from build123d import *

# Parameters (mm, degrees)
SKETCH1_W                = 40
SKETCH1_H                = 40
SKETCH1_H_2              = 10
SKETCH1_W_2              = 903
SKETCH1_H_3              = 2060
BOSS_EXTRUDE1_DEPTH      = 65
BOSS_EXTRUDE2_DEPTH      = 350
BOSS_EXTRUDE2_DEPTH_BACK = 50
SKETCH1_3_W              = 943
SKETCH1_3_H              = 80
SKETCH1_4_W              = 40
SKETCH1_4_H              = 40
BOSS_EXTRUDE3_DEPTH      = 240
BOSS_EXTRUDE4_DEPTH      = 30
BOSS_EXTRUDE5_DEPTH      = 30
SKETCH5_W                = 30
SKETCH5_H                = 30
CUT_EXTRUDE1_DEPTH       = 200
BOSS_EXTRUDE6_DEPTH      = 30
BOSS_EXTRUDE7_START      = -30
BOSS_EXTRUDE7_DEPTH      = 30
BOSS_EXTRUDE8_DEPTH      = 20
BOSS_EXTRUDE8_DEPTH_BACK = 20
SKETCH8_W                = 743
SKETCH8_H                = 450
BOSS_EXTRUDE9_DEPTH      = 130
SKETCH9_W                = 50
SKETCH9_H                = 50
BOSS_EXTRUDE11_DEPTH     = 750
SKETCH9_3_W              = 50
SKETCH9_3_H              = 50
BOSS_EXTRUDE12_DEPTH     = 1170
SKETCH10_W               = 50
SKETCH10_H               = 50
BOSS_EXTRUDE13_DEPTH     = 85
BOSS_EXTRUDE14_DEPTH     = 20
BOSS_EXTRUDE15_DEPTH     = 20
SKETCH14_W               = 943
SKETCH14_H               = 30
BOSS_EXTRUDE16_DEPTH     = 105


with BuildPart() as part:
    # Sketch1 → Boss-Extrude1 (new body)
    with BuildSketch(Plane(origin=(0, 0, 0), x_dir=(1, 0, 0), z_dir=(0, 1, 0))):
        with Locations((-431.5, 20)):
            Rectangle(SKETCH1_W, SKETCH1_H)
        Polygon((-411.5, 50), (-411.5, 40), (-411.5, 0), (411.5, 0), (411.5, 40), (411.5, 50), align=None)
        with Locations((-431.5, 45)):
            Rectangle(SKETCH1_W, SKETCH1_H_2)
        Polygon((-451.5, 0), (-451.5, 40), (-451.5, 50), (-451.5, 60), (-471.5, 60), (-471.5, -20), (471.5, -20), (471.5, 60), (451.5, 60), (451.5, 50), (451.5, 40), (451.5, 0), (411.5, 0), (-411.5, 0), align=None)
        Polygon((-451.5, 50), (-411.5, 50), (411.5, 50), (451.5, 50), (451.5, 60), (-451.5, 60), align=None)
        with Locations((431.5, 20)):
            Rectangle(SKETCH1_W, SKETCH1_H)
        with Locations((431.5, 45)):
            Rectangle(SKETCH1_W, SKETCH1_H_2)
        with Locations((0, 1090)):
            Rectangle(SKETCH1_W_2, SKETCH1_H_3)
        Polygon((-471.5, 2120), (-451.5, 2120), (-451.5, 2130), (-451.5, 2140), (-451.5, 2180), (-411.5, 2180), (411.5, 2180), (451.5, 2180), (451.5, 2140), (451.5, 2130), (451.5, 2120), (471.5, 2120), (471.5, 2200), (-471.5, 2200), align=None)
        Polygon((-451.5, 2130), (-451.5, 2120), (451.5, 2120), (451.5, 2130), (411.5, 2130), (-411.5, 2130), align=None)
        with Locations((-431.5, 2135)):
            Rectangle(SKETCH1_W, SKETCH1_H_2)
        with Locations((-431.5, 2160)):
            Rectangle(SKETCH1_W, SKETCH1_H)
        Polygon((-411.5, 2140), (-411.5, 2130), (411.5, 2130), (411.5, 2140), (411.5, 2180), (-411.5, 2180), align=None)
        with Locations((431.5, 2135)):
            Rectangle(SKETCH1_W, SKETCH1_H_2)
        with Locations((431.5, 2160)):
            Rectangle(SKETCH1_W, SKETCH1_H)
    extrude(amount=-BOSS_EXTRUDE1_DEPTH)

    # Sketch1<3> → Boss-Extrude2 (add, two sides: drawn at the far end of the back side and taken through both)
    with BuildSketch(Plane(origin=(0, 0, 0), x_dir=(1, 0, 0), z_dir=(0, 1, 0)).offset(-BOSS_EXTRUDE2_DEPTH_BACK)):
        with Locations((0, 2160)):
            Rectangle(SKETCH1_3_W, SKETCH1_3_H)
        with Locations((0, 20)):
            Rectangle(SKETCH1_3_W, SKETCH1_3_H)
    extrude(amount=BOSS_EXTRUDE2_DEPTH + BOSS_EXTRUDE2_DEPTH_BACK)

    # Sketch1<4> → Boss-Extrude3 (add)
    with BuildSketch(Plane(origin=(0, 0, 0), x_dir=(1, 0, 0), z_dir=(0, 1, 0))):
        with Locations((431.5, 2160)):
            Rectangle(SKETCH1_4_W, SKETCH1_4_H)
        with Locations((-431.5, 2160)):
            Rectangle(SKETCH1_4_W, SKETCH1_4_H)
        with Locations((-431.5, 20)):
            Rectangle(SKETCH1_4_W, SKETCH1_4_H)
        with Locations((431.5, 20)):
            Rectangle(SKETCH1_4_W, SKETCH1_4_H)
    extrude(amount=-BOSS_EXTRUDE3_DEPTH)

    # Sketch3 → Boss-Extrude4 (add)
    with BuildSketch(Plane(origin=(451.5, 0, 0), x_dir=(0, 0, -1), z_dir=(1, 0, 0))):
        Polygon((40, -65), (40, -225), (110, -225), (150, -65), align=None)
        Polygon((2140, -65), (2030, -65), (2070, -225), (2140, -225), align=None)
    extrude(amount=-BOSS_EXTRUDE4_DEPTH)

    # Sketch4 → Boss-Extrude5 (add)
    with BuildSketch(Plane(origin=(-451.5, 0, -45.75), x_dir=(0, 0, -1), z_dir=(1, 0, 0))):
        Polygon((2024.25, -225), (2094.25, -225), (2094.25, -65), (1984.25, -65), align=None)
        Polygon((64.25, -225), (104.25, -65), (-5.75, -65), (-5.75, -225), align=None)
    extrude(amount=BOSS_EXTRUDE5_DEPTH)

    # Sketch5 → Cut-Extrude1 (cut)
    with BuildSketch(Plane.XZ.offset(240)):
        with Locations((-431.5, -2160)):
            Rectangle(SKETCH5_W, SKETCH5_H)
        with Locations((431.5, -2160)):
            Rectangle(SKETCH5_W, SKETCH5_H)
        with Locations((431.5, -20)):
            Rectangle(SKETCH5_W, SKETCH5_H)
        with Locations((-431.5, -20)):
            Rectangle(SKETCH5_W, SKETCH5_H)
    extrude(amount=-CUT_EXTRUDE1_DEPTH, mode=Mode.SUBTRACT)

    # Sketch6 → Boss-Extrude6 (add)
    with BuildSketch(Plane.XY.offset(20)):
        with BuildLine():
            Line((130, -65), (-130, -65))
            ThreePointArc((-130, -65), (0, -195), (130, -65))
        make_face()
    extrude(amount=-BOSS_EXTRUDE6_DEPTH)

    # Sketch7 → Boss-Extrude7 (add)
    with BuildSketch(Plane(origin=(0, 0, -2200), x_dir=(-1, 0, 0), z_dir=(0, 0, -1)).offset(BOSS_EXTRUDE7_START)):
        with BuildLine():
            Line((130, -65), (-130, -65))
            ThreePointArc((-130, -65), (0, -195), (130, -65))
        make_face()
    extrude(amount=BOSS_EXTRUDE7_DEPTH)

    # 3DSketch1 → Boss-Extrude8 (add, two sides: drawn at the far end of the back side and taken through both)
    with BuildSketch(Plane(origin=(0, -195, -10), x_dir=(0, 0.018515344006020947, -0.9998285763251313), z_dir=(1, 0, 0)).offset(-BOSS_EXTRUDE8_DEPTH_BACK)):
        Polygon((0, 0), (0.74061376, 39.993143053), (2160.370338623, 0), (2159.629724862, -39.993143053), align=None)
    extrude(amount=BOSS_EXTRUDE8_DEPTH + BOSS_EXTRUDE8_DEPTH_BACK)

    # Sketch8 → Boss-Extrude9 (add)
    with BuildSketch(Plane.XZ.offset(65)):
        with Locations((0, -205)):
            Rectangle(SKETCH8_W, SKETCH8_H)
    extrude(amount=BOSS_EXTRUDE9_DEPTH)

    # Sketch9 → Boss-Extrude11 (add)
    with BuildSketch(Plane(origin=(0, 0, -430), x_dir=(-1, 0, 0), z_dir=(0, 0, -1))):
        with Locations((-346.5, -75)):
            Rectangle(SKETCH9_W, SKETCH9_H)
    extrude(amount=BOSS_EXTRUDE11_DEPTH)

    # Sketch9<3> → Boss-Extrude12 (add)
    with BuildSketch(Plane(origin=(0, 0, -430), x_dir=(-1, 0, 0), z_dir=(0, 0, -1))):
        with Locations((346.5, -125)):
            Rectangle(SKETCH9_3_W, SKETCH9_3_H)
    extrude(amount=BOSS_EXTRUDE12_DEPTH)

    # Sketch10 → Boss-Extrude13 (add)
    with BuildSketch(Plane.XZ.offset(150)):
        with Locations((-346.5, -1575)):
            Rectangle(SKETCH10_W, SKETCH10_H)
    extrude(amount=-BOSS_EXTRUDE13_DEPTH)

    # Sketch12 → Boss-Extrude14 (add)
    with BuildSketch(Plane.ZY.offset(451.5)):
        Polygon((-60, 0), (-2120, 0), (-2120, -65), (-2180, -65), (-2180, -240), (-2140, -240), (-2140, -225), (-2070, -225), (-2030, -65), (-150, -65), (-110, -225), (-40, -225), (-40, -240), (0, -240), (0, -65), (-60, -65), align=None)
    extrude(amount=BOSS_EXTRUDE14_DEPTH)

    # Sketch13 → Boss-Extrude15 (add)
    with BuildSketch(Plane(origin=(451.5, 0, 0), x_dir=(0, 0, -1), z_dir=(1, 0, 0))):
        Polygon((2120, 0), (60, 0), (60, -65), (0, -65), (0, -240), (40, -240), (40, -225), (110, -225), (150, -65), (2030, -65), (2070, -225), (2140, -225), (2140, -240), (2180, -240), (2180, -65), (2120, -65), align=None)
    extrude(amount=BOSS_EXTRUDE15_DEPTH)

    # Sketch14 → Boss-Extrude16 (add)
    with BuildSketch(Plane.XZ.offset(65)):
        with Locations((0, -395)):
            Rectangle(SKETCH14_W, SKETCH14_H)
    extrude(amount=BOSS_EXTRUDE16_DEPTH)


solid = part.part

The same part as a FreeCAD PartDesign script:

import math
import FreeCAD as App
import Part
import Sketcher
from FreeCAD import Vector


def add_polygon(sketch, points):
    """Adds a closed chain of lines whose ends are joined by coincident constraints."""
    first, n = sketch.GeometryCount, len(points)
    for a, b in zip(points, points[1:] + points[:1]):
        sketch.addGeometry(Part.LineSegment(App.Vector(*a, 0), App.Vector(*b, 0)), False)
    for i in range(n):
        sketch.addConstraint(Sketcher.Constraint("Coincident", first + i, 2, first + (i + 1) % n, 1))

doc = App.newDocument("Part")
params = doc.addObject("Spreadsheet::Sheet", "Params")
for row, (alias, value) in enumerate([
    ("sketch1_width", "943 mm"),
    ("sketch1_width2", "20 mm"),
    ("sketch1_height", "80 mm"),
    ("sketch1_height2", "2060 mm"),
    ("pad1_length", "65 mm"),
    ("sketch2_width", "943 mm"),
    ("sketch2_height", "80 mm"),
    ("pad2_length", "350 mm"),
    ("pad2_length2", "50 mm"),
    ("sketch3_width", "40 mm"),
    ("pad3_length", "240 mm"),
    ("sketch4_width", "160 mm"),
    ("sketch4_height", "70 mm"),
    ("sketch4_height2", "110 mm"),
    ("pad4_length", "30 mm"),
    ("sketch5_width", "160 mm"),
    ("sketch5_height", "70 mm"),
    ("sketch5_height2", "110 mm"),
    ("pad5_length", "30 mm"),
    ("sketch6_width", "30 mm"),
    ("pocket1_length", "200 mm"),
    ("sketch7_radius", "130 mm"),
    ("pad6_length", "30 mm"),
    ("sketch8_radius", "130 mm"),
    ("pad7_length", "30 mm"),
    ("sketch9_width", "40 mm"),
    ("sketch9_height", "2159.999999 mm"),
    ("pad8_length", "20 mm"),
    ("pad8_length2", "20 mm"),
    ("sketch10_width", "743 mm"),
    ("sketch10_height", "450 mm"),
    ("pad9_length", "130 mm"),
    ("sketch11_width", "50 mm"),
    ("pad10_length", "750 mm"),
    ("sketch12_width", "50 mm"),
    ("pad11_length", "1170 mm"),
    ("sketch13_width", "50 mm"),
    ("pad12_length", "85 mm"),
    ("sketch14_width", "65 mm"),
    ("sketch14_width2", "175 mm"),
    ("sketch14_width3", "15 mm"),
    ("sketch14_height", "2060 mm"),
    ("sketch14_height2", "60 mm"),
    ("pad13_length", "20 mm"),
    ("sketch15_width", "65 mm"),
    ("sketch15_width2", "175 mm"),
    ("sketch15_width3", "15 mm"),
    ("sketch15_height", "2060 mm"),
    ("sketch15_height2", "60 mm"),
    ("pad14_length", "20 mm"),
    ("sketch16_width", "943 mm"),
    ("sketch16_height", "30 mm"),
    ("pad15_length", "105 mm"),
], start=1):
    params.set(f"A{row}", alias)
    params.set(f"B{row}", "=" + value)
    params.setAlias(f"B{row}", alias)

body = doc.addObject("PartDesign::Body", "Body")

sketch1 = doc.addObject("Sketcher::SketchObject", "Sketch")
body.addObject(sketch1)
sketch1.AttachmentSupport = (doc.XZ_Plane, [""])
sketch1.MapMode = "FlatFace"
add_polygon(sketch1, [(-472, -60), (-472, 20), (472, 20), (472, -60), (452, -60), (452, -2120), (472, -2120), (472, -2200), (-472, -2200), (-472, -2120), (-452, -2120), (-452, -60)])
sketch1.addConstraint(Sketcher.Constraint("Vertical", 0))
sketch1.addConstraint(Sketcher.Constraint("Horizontal", 1))
sketch1.addConstraint(Sketcher.Constraint("Vertical", 2))
sketch1.addConstraint(Sketcher.Constraint("Horizontal", 3))
sketch1.addConstraint(Sketcher.Constraint("Vertical", 4))
sketch1.addConstraint(Sketcher.Constraint("Horizontal", 5))
sketch1.addConstraint(Sketcher.Constraint("Vertical", 6))
sketch1.addConstraint(Sketcher.Constraint("Horizontal", 7))
sketch1.addConstraint(Sketcher.Constraint("Vertical", 8))
sketch1.addConstraint(Sketcher.Constraint("Horizontal", 9))
sketch1.addConstraint(Sketcher.Constraint("Vertical", 10))
sketch1.addConstraint(Sketcher.Constraint("Horizontal", 11))
sketch1.addConstraint(Sketcher.Constraint("Symmetric", 5, 2, 8, 2, -2))
sketch1.addConstraint(Sketcher.Constraint("Symmetric", 3, 2, 10, 2, -2))
sketch1.addConstraint(Sketcher.Constraint("Vertical", 2, 2, 5, 2))
sketch1.addConstraint(Sketcher.Constraint("Vertical", 0, 2, 7, 2))
sketch1.addConstraint(Sketcher.Constraint("Equal", 2, 6))
sketch1.addConstraint(Sketcher.Constraint("DistanceX", 1, 1, 1, 2, 943.0))
sketch1.addConstraint(Sketcher.Constraint("DistanceX", 3, 2, 3, 1, 20.0))
sketch1.addConstraint(Sketcher.Constraint("DistanceY", 0, 1, 0, 2, 80.0))
sketch1.addConstraint(Sketcher.Constraint("DistanceY", 4, 2, 4, 1, 2060.0))
sketch1.addConstraint(Sketcher.Constraint("DistanceY", -1, 1, 0, 2, 20.0))
sketch1.setExpression("Constraints[29]", "Params.sketch1_width")
sketch1.setExpression("Constraints[30]", "Params.sketch1_width2")
sketch1.setExpression("Constraints[31]", "Params.sketch1_height")
sketch1.setExpression("Constraints[32]", "Params.sketch1_height2")
pad1 = doc.addObject("PartDesign::Pad", "Pad")
body.addObject(pad1)
pad1.Profile = sketch1
pad1.setExpression("Length", "Params.pad1_length")

sketch2 = doc.addObject("Sketcher::SketchObject", "Sketch001")
body.addObject(sketch2)
sketch2.AttachmentSupport = (doc.XZ_Plane, [""])
sketch2.MapMode = "FlatFace"
add_polygon(sketch2, [(-472, -2200), (-472, -2120), (472, -2120), (472, -2200)])
add_polygon(sketch2, [(-472, -60), (-472, 20), (472, 20), (472, -60)])
sketch2.addConstraint(Sketcher.Constraint("Vertical", 0))
sketch2.addConstraint(Sketcher.Constraint("Horizontal", 1))
sketch2.addConstraint(Sketcher.Constraint("Vertical", 2))
sketch2.addConstraint(Sketcher.Constraint("Horizontal", 3))
sketch2.addConstraint(Sketcher.Constraint("Vertical", 4))
sketch2.addConstraint(Sketcher.Constraint("Horizontal", 5))
sketch2.addConstraint(Sketcher.Constraint("Vertical", 6))
sketch2.addConstraint(Sketcher.Constraint("Horizontal", 7))
sketch2.addConstraint(Sketcher.Constraint("Vertical", 3, 2, 4, 2))
sketch2.addConstraint(Sketcher.Constraint("Vertical", 2, 2, 5, 2))
sketch2.addConstraint(Sketcher.Constraint("Equal", 2, 4))
sketch2.addConstraint(Sketcher.Constraint("DistanceX", 1, 1, 1, 2, 943.0))
sketch2.addConstraint(Sketcher.Constraint("DistanceY", 0, 1, 0, 2, 80.0))
sketch2.addConstraint(Sketcher.Constraint("DistanceY", 0, 2, -1, 1, 2120.0))
sketch2.addConstraint(Sketcher.Constraint("DistanceY", -1, 1, 4, 2, 20.0))
sketch2.addConstraint(Sketcher.Constraint("DistanceX", 0, 2, -1, 1, 471.5))
sketch2.setExpression("Constraints[19]", "Params.sketch2_width")
sketch2.setExpression("Constraints[20]", "Params.sketch2_height")
pad2 = doc.addObject("PartDesign::Pad", "Pad001")
body.addObject(pad2)
pad2.Profile = sketch2
pad2.Type = "TwoLengths"
pad2.setExpression("Length", "Params.pad2_length")
pad2.setExpression("Length2", "Params.pad2_length2")
pad2.Reversed = True

sketch3 = doc.addObject("Sketcher::SketchObject", "Sketch002")
body.addObject(sketch3)
sketch3.AttachmentSupport = (doc.XZ_Plane, [""])
sketch3.MapMode = "FlatFace"
add_polygon(sketch3, [(412, -2180), (412, -2140), (452, -2140), (452, -2180)])
add_polygon(sketch3, [(-452, -2180), (-452, -2140), (-412, -2140), (-412, -2180)])
add_polygon(sketch3, [(-452, -40), (-452, 0), (-412, 0), (-412, -40)])
add_polygon(sketch3, [(412, -40), (412, 0), (452, 0), (452, -40)])
sketch3.addConstraint(Sketcher.Constraint("Vertical", 0))
sketch3.addConstraint(Sketcher.Constraint("Horizontal", 1))
sketch3.addConstraint(Sketcher.Constraint("Vertical", 2))
sketch3.addConstraint(Sketcher.Constraint("Horizontal", 3))
sketch3.addConstraint(Sketcher.Constraint("Vertical", 4))
sketch3.addConstraint(Sketcher.Constraint("Horizontal", 5))
sketch3.addConstraint(Sketcher.Constraint("Vertical", 6))
sketch3.addConstraint(Sketcher.Constraint("Horizontal", 7))
sketch3.addConstraint(Sketcher.Constraint("Vertical", 8))
sketch3.addConstraint(Sketcher.Constraint("Horizontal", 9))
sketch3.addConstraint(Sketcher.Constraint("Vertical", 10))
sketch3.addConstraint(Sketcher.Constraint("Horizontal", 11))
sketch3.addConstraint(Sketcher.Constraint("Vertical", 12))
sketch3.addConstraint(Sketcher.Constraint("Horizontal", 13))
sketch3.addConstraint(Sketcher.Constraint("Vertical", 14))
sketch3.addConstraint(Sketcher.Constraint("Horizontal", 15))
sketch3.addConstraint(Sketcher.Constraint("Symmetric", 9, 2, 12, 2, -1, 1))
sketch3.addConstraint(Sketcher.Constraint("Symmetric", 1, 2, 4, 2, -2))
sketch3.addConstraint(Sketcher.Constraint("Symmetric", 3, 2, 6, 2, -2))
sketch3.addConstraint(Sketcher.Constraint("Symmetric", 8, 2, 13, 2, -2))
sketch3.addConstraint(Sketcher.Constraint("Horizontal", 11, 2, 14, 2))
sketch3.addConstraint(Sketcher.Constraint("Vertical", 7, 2, 8, 2))
sketch3.addConstraint(Sketcher.Constraint("Vertical", 6, 2, 9, 2))
sketch3.addConstraint(Sketcher.Constraint("Equal", 15, 0))
sketch3.addConstraint(Sketcher.Constraint("Equal", 6, 8))
sketch3.addConstraint(Sketcher.Constraint("DistanceX", 1, 1, 1, 2, 40.0))
sketch3.addConstraint(Sketcher.Constraint("DistanceY", 0, 2, -1, 1, 2140.0))
sketch3.addConstraint(Sketcher.Constraint("DistanceX", 4, 2, 0, 2, 863.0))
sketch3.setExpression("Constraints[41]", "Params.sketch3_width")
pad3 = doc.addObject("PartDesign::Pad", "Pad002")
body.addObject(pad3)
pad3.Profile = sketch3
pad3.setExpression("Length", "Params.pad3_length")

sketch4 = doc.addObject("Sketcher::SketchObject", "Sketch003")
body.addObject(sketch4)
sketch4.AttachmentSupport = (doc.YZ_Plane, [""])
sketch4.MapMode = "FlatFace"
sketch4.AttachmentOffset = App.Placement(Vector(0, 0, 451.5), App.Rotation())
add_polygon(sketch4, [(-65, -40), (-225, -40), (-225, -110), (-65, -150)])
add_polygon(sketch4, [(-65, -2140), (-65, -2030), (-225, -2070), (-225, -2140)])
sketch4.addConstraint(Sketcher.Constraint("Horizontal", 0))
sketch4.addConstraint(Sketcher.Constraint("Vertical", 1))
sketch4.addConstraint(Sketcher.Constraint("Vertical", 3))
sketch4.addConstraint(Sketcher.Constraint("Vertical", 4))
sketch4.addConstraint(Sketcher.Constraint("Vertical", 6))
sketch4.addConstraint(Sketcher.Constraint("Horizontal", 7))
sketch4.addConstraint(Sketcher.Constraint("Vertical", 3, 2, 4, 2))
sketch4.addConstraint(Sketcher.Constraint("Vertical", 1, 2, 5, 2))
sketch4.addConstraint(Sketcher.Constraint("Equal", 3, 4))
sketch4.addConstraint(Sketcher.Constraint("Equal", 1, 6))
sketch4.addConstraint(Sketcher.Constraint("DistanceX", 0, 2, 0, 1, 160.0))
sketch4.addConstraint(Sketcher.Constraint("DistanceY", 1, 2, 1, 1, 70.0))
sketch4.addConstraint(Sketcher.Constraint("DistanceY", 3, 1, 3, 2, 110.0))
sketch4.addConstraint(Sketcher.Constraint("DistanceX", 0, 2, -1, 1, 225.0))
sketch4.addConstraint(Sketcher.Constraint("DistanceY", 0, 2, -1, 1, 40.0))
sketch4.addConstraint(Sketcher.Constraint("DistanceY", 4, 2, -1, 1, 2030.0))
sketch4.setExpression("Constraints[18]", "Params.sketch4_width")
sketch4.setExpression("Constraints[19]", "Params.sketch4_height")
sketch4.setExpression("Constraints[20]", "Params.sketch4_height2")
pad4 = doc.addObject("PartDesign::Pad", "Pad003")
body.addObject(pad4)
pad4.Profile = sketch4
pad4.setExpression("Length", "Params.pad4_length")
pad4.Reversed = True

sketch5 = doc.addObject("Sketcher::SketchObject", "Sketch004")
body.addObject(sketch5)
sketch5.AttachmentSupport = (doc.YZ_Plane, [""])
sketch5.MapMode = "FlatFace"
sketch5.AttachmentOffset = App.Placement(Vector(0, 0, -451.5), App.Rotation())
add_polygon(sketch5, [(-225, -2070), (-225, -2140), (-65, -2140), (-65, -2030)])
add_polygon(sketch5, [(-225, -110), (-65, -150), (-65, -40), (-225, -40)])
sketch5.addConstraint(Sketcher.Constraint("Vertical", 0))
sketch5.addConstraint(Sketcher.Constraint("Horizontal", 1))
sketch5.addConstraint(Sketcher.Constraint("Vertical", 2))
sketch5.addConstraint(Sketcher.Constraint("Vertical", 5))
sketch5.addConstraint(Sketcher.Constraint("Horizontal", 6))
sketch5.addConstraint(Sketcher.Constraint("Vertical", 7))
sketch5.addConstraint(Sketcher.Constraint("Vertical", 2, 2, 4, 2))
sketch5.addConstraint(Sketcher.Constraint("Vertical", 3, 2, 6, 2))
sketch5.addConstraint(Sketcher.Constraint("Equal", 2, 5))
sketch5.addConstraint(Sketcher.Constraint("Equal", 0, 7))
sketch5.addConstraint(Sketcher.Constraint("DistanceX", 1, 1, 1, 2, 160.0))
sketch5.addConstraint(Sketcher.Constraint("DistanceY", 0, 2, 0, 1, 70.0))
sketch5.addConstraint(Sketcher.Constraint("DistanceY", 2, 1, 2, 2, 110.0))
sketch5.addConstraint(Sketcher.Constraint("DistanceX", 0, 2, -1, 1, 225.0))
sketch5.addConstraint(Sketcher.Constraint("DistanceY", 0, 2, -1, 1, 2140.0))
sketch5.addConstraint(Sketcher.Constraint("DistanceY", 4, 2, -1, 1, 150.0))
sketch5.setExpression("Constraints[18]", "Params.sketch5_width")
sketch5.setExpression("Constraints[19]", "Params.sketch5_height")
sketch5.setExpression("Constraints[20]", "Params.sketch5_height2")
pad5 = doc.addObject("PartDesign::Pad", "Pad004")
body.addObject(pad5)
pad5.Profile = sketch5
pad5.setExpression("Length", "Params.pad5_length")

sketch6 = doc.addObject("Sketcher::SketchObject", "Sketch005")
body.addObject(sketch6)
sketch6.AttachmentSupport = (doc.XZ_Plane, [""])
sketch6.MapMode = "FlatFace"
sketch6.AttachmentOffset = App.Placement(Vector(0, 0, 240), App.Rotation())
add_polygon(sketch6, [(-446, -2145), (-446, -2175), (-416, -2175), (-416, -2145)])
add_polygon(sketch6, [(416, -2145), (416, -2175), (446, -2175), (446, -2145)])
add_polygon(sketch6, [(416, -5), (416, -35), (446, -35), (446, -5)])
add_polygon(sketch6, [(-446, -5), (-446, -35), (-416, -35), (-416, -5)])
sketch6.addConstraint(Sketcher.Constraint("Vertical", 0))
sketch6.addConstraint(Sketcher.Constraint("Horizontal", 1))
sketch6.addConstraint(Sketcher.Constraint("Vertical", 2))
sketch6.addConstraint(Sketcher.Constraint("Horizontal", 3))
sketch6.addConstraint(Sketcher.Constraint("Vertical", 4))
sketch6.addConstraint(Sketcher.Constraint("Horizontal", 5))
sketch6.addConstraint(Sketcher.Constraint("Vertical", 6))
sketch6.addConstraint(Sketcher.Constraint("Horizontal", 7))
sketch6.addConstraint(Sketcher.Constraint("Vertical", 8))
sketch6.addConstraint(Sketcher.Constraint("Horizontal", 9))
sketch6.addConstraint(Sketcher.Constraint("Vertical", 10))
sketch6.addConstraint(Sketcher.Constraint("Horizontal", 11))
sketch6.addConstraint(Sketcher.Constraint("Vertical", 12))
sketch6.addConstraint(Sketcher.Constraint("Horizontal", 13))
sketch6.addConstraint(Sketcher.Constraint("Vertical", 14))
sketch6.addConstraint(Sketcher.Constraint("Horizontal", 15))
sketch6.addConstraint(Sketcher.Constraint("Symmetric", 1, 2, 4, 2, -2))
sketch6.addConstraint(Sketcher.Constraint("Symmetric", 3, 2, 6, 2, -2))
sketch6.addConstraint(Sketcher.Constraint("Symmetric", 9, 2, 12, 2, -2))
sketch6.addConstraint(Sketcher.Constraint("Symmetric", 11, 2, 14, 2, -2))
sketch6.addConstraint(Sketcher.Constraint("Vertical", 7, 2, 8, 2))
sketch6.addConstraint(Sketcher.Constraint("Vertical", 6, 2, 9, 2))
sketch6.addConstraint(Sketcher.Constraint("Equal", 15, 0))
sketch6.addConstraint(Sketcher.Constraint("Equal", 6, 8))
sketch6.addConstraint(Sketcher.Constraint("DistanceX", 1, 1, 1, 2, 30.0))
sketch6.addConstraint(Sketcher.Constraint("DistanceY", 0, 2, -1, 1, 2175.0))
sketch6.addConstraint(Sketcher.Constraint("DistanceY", 8, 2, -1, 1, 35.0))
sketch6.addConstraint(Sketcher.Constraint("DistanceX", 1, 2, 4, 2, 833.0))
sketch6.setExpression("Constraints[40]", "Params.sketch6_width")
pocket1 = doc.addObject("PartDesign::Pocket", "Pocket")
body.addObject(pocket1)
pocket1.Profile = sketch6
pocket1.setExpression("Length", "Params.pocket1_length")

sketch7 = doc.addObject("Sketcher::SketchObject", "Sketch006")
body.addObject(sketch7)
sketch7.AttachmentSupport = (doc.XY_Plane, [""])
sketch7.MapMode = "FlatFace"
sketch7.AttachmentOffset = App.Placement(Vector(0, 0, 20), App.Rotation())
sketch7.addGeometry(Part.LineSegment(Vector(130, -65, 0), Vector(-130, -65, 0)), False)
sketch7.addGeometry(Part.ArcOfCircle(Part.Circle(Vector(0, -65, 0), Vector(0, 0, 1), 130), math.radians(180), math.radians(360)), False)
sketch7.addConstraint(Sketcher.Constraint("Coincident", 0, 1, 1, 2))
sketch7.addConstraint(Sketcher.Constraint("Coincident", 1, 1, 0, 2))
sketch7.addConstraint(Sketcher.Constraint("Horizontal", 0))
sketch7.addConstraint(Sketcher.Constraint("PointOnObject", 1, 3, -2))
sketch7.addConstraint(Sketcher.Constraint("Horizontal", 1, 3, 0, 1))
sketch7.addConstraint(Sketcher.Constraint("Radius", 1, 130.0))
sketch7.addConstraint(Sketcher.Constraint("DistanceY", 1, 3, -1, 1, 65.0))
sketch7.setExpression("Constraints[5]", "Params.sketch7_radius")
pad6 = doc.addObject("PartDesign::Pad", "Pad005")
body.addObject(pad6)
pad6.Profile = sketch7
pad6.setExpression("Length", "Params.pad6_length")
pad6.Reversed = True

sketch8 = doc.addObject("Sketcher::SketchObject", "Sketch007")
body.addObject(sketch8)
sketch8.AttachmentSupport = (doc.XY_Plane, [""])
sketch8.MapMode = "FlatFace"
sketch8.AttachmentOffset = App.Placement(Vector(0, 0, -2170), App.Rotation())
sketch8.addGeometry(Part.LineSegment(Vector(-130, -65, 0), Vector(130, -65, 0)), False)
sketch8.addGeometry(Part.ArcOfCircle(Part.Circle(Vector(0, -65, 0), Vector(0, 0, 1), 130), math.radians(180), math.radians(360)), False)
sketch8.addConstraint(Sketcher.Constraint("Coincident", 0, 1, 1, 1))
sketch8.addConstraint(Sketcher.Constraint("Coincident", 1, 2, 0, 2))
sketch8.addConstraint(Sketcher.Constraint("Horizontal", 0))
sketch8.addConstraint(Sketcher.Constraint("PointOnObject", 1, 3, -2))
sketch8.addConstraint(Sketcher.Constraint("Horizontal", 1, 3, 0, 1))
sketch8.addConstraint(Sketcher.Constraint("Radius", 1, 130.0))
sketch8.addConstraint(Sketcher.Constraint("DistanceY", 1, 3, -1, 1, 65.0))
sketch8.setExpression("Constraints[5]", "Params.sketch8_radius")
pad7 = doc.addObject("PartDesign::Pad", "Pad006")
body.addObject(pad7)
pad7.Profile = sketch8
pad7.setExpression("Length", "Params.pad7_length")
pad7.Reversed = True

sketch9 = doc.addObject("Sketcher::SketchObject", "Sketch008")
body.addObject(sketch9)
sketch9.AttachmentSupport = (doc.YZ_Plane, [""])
sketch9.MapMode = "FlatFace"
add_polygon(sketch9, [(-155, -10), (-195, -10), (-195, -2170), (-155, -2170)])
sketch9.addConstraint(Sketcher.Constraint("Horizontal", 0))
sketch9.addConstraint(Sketcher.Constraint("Vertical", 1))
sketch9.addConstraint(Sketcher.Constraint("Horizontal", 2))
sketch9.addConstraint(Sketcher.Constraint("Vertical", 3))
sketch9.addConstraint(Sketcher.Constraint("DistanceX", 0, 2, 0, 1, 40.0))
sketch9.addConstraint(Sketcher.Constraint("DistanceY", 1, 2, 1, 1, 2159.999999))
sketch9.addConstraint(Sketcher.Constraint("DistanceX", 0, 2, -1, 1, 195.0))
sketch9.addConstraint(Sketcher.Constraint("DistanceY", 0, 2, -1, 1, 10.0))
sketch9.setExpression("Constraints[8]", "Params.sketch9_width")
sketch9.setExpression("Constraints[9]", "Params.sketch9_height")
pad8 = doc.addObject("PartDesign::Pad", "Pad007")
body.addObject(pad8)
pad8.Profile = sketch9
pad8.Type = "TwoLengths"
pad8.setExpression("Length", "Params.pad8_length")
pad8.setExpression("Length2", "Params.pad8_length2")

sketch10 = doc.addObject("Sketcher::SketchObject", "Sketch009")
body.addObject(sketch10)
sketch10.AttachmentSupport = (doc.XZ_Plane, [""])
sketch10.MapMode = "FlatFace"
sketch10.AttachmentOffset = App.Placement(Vector(0, 0, 65), App.Rotation())
add_polygon(sketch10, [(-372, 20), (-372, -430), (372, -430), (372, 20)])
sketch10.addConstraint(Sketcher.Constraint("Vertical", 0))
sketch10.addConstraint(Sketcher.Constraint("Horizontal", 1))
sketch10.addConstraint(Sketcher.Constraint("Vertical", 2))
sketch10.addConstraint(Sketcher.Constraint("Horizontal", 3))
sketch10.addConstraint(Sketcher.Constraint("DistanceX", 1, 1, 1, 2, 743.0))
sketch10.addConstraint(Sketcher.Constraint("DistanceY", 0, 2, 0, 1, 450.0))
sketch10.addConstraint(Sketcher.Constraint("DistanceY", 0, 2, -1, 1, 430.0))
sketch10.addConstraint(Sketcher.Constraint("DistanceX", 0, 2, -1, 1, 371.5))
sketch10.setExpression("Constraints[8]", "Params.sketch10_width")
sketch10.setExpression("Constraints[9]", "Params.sketch10_height")
pad9 = doc.addObject("PartDesign::Pad", "Pad008")
body.addObject(pad9)
pad9.Profile = sketch10
pad9.setExpression("Length", "Params.pad9_length")

sketch11 = doc.addObject("Sketcher::SketchObject", "Sketch010")
body.addObject(sketch11)
sketch11.AttachmentSupport = (doc.XY_Plane, [""])
sketch11.MapMode = "FlatFace"
sketch11.AttachmentOffset = App.Placement(Vector(0, 0, -430), App.Rotation())
add_polygon(sketch11, [(372, -50), (372, -100), (322, -100), (322, -50)])
sketch11.addConstraint(Sketcher.Constraint("Vertical", 0))
sketch11.addConstraint(Sketcher.Constraint("Horizontal", 1))
sketch11.addConstraint(Sketcher.Constraint("Vertical", 2))
sketch11.addConstraint(Sketcher.Constraint("Horizontal", 3))
sketch11.addConstraint(Sketcher.Constraint("Equal", 3, 0))
sketch11.addConstraint(Sketcher.Constraint("DistanceX", 1, 2, 1, 1, 50.0))
sketch11.addConstraint(Sketcher.Constraint("DistanceY", 0, 2, -1, 1, 100.0))
sketch11.addConstraint(Sketcher.Constraint("DistanceX", -1, 1, 0, 2, 371.5))
sketch11.setExpression("Constraints[9]", "Params.sketch11_width")
pad10 = doc.addObject("PartDesign::Pad", "Pad009")
body.addObject(pad10)
pad10.Profile = sketch11
pad10.setExpression("Length", "Params.pad10_length")
pad10.Reversed = True

sketch12 = doc.addObject("Sketcher::SketchObject", "Sketch011")
body.addObject(sketch12)
sketch12.AttachmentSupport = (doc.XY_Plane, [""])
sketch12.MapMode = "FlatFace"
sketch12.AttachmentOffset = App.Placement(Vector(0, 0, -430), App.Rotation())
add_polygon(sketch12, [(-322, -100), (-322, -150), (-372, -150), (-372, -100)])
sketch12.addConstraint(Sketcher.Constraint("Vertical", 0))
sketch12.addConstraint(Sketcher.Constraint("Horizontal", 1))
sketch12.addConstraint(Sketcher.Constraint("Vertical", 2))
sketch12.addConstraint(Sketcher.Constraint("Horizontal", 3))
sketch12.addConstraint(Sketcher.Constraint("Equal", 3, 0))
sketch12.addConstraint(Sketcher.Constraint("DistanceX", 1, 2, 1, 1, 50.0))
sketch12.addConstraint(Sketcher.Constraint("DistanceY", 0, 2, -1, 1, 150.0))
sketch12.addConstraint(Sketcher.Constraint("DistanceX", 0, 2, -1, 1, 321.5))
sketch12.setExpression("Constraints[9]", "Params.sketch12_width")
pad11 = doc.addObject("PartDesign::Pad", "Pad010")
body.addObject(pad11)
pad11.Profile = sketch12
pad11.setExpression("Length", "Params.pad11_length")
pad11.Reversed = True

sketch13 = doc.addObject("Sketcher::SketchObject", "Sketch012")
body.addObject(sketch13)
sketch13.AttachmentSupport = (doc.XZ_Plane, [""])
sketch13.MapMode = "FlatFace"
sketch13.AttachmentOffset = App.Placement(Vector(0, 0, 150), App.Rotation())
add_polygon(sketch13, [(-372, -1550), (-372, -1600), (-322, -1600), (-322, -1550)])
sketch13.addConstraint(Sketcher.Constraint("Vertical", 0))
sketch13.addConstraint(Sketcher.Constraint("Horizontal", 1))
sketch13.addConstraint(Sketcher.Constraint("Vertical", 2))
sketch13.addConstraint(Sketcher.Constraint("Horizontal", 3))
sketch13.addConstraint(Sketcher.Constraint("Equal", 3, 0))
sketch13.addConstraint(Sketcher.Constraint("DistanceX", 1, 1, 1, 2, 50.0))
sketch13.addConstraint(Sketcher.Constraint("DistanceY", 0, 2, -1, 1, 1600.0))
sketch13.addConstraint(Sketcher.Constraint("DistanceX", 0, 2, -1, 1, 371.5))
sketch13.setExpression("Constraints[9]", "Params.sketch13_width")
pad12 = doc.addObject("PartDesign::Pad", "Pad011")
body.addObject(pad12)
pad12.Profile = sketch13
pad12.setExpression("Length", "Params.pad12_length")
pad12.Reversed = True

sketch14 = doc.addObject("Sketcher::SketchObject", "Sketch013")
body.addObject(sketch14)
sketch14.AttachmentSupport = (doc.YZ_Plane, [""])
sketch14.MapMode = "FlatFace"
sketch14.AttachmentOffset = App.Placement(Vector(0, 0, -451.5), App.Rotation())
add_polygon(sketch14, [(0, -60), (0, -2120), (-65, -2120), (-65, -2180), (-240, -2180), (-240, -2140), (-225, -2140), (-225, -2070), (-65, -2030), (-65, -150), (-225, -110), (-225, -40), (-240, -40), (-240, 0), (-65, 0), (-65, -60)])
sketch14.addConstraint(Sketcher.Constraint("Vertical", 0))
sketch14.addConstraint(Sketcher.Constraint("Horizontal", 1))
sketch14.addConstraint(Sketcher.Constraint("Vertical", 2))
sketch14.addConstraint(Sketcher.Constraint("Horizontal", 3))
sketch14.addConstraint(Sketcher.Constraint("Vertical", 4))
sketch14.addConstraint(Sketcher.Constraint("Horizontal", 5))
sketch14.addConstraint(Sketcher.Constraint("Vertical", 6))
sketch14.addConstraint(Sketcher.Constraint("Vertical", 8))
sketch14.addConstraint(Sketcher.Constraint("Vertical", 10))
sketch14.addConstraint(Sketcher.Constraint("Horizontal", 11))
sketch14.addConstraint(Sketcher.Constraint("Vertical", 12))
sketch14.addConstraint(Sketcher.Constraint("Horizontal", 13))
sketch14.addConstraint(Sketcher.Constraint("Vertical", 14))
sketch14.addConstraint(Sketcher.Constraint("Horizontal", 15))
sketch14.addConstraint(Sketcher.Constraint("PointOnObject", 0, 2, -2))
sketch14.addConstraint(Sketcher.Constraint("PointOnObject", 12, 2, -1))
sketch14.addConstraint(Sketcher.Constraint("Vertical", 2, 2, 7, 2))
sketch14.addConstraint(Sketcher.Constraint("Vertical", 6, 2, 9, 2))
sketch14.addConstraint(Sketcher.Constraint("Vertical", 4, 2, 11, 2))
sketch14.addConstraint(Sketcher.Constraint("Vertical", 8, 2, 13, 2))
sketch14.addConstraint(Sketcher.Constraint("Equal", 6, 10))
sketch14.addConstraint(Sketcher.Constraint("Equal", 4, 12))
sketch14.addConstraint(Sketcher.Constraint("Equal", 2, 14))
sketch14.addConstraint(Sketcher.Constraint("Equal", 7, 9))
sketch14.addConstraint(Sketcher.Constraint("DistanceX", 1, 2, 1, 1, 65.0))
sketch14.addConstraint(Sketcher.Constraint("DistanceX", 3, 2, 3, 1, 175.0))
sketch14.addConstraint(Sketcher.Constraint("DistanceX", 5, 1, 5, 2, 15.0))
sketch14.addConstraint(Sketcher.Constraint("DistanceY", 0, 2, 0, 1, 2060.0))
sketch14.addConstraint(Sketcher.Constraint("DistanceY", 2, 2, 2, 1, 60.0))
sketch14.addConstraint(Sketcher.Constraint("DistanceY", 4, 1, 4, 2, 40.0))
sketch14.addConstraint(Sketcher.Constraint("DistanceY", 6, 1, 6, 2, 70.0))
sketch14.addConstraint(Sketcher.Constraint("DistanceY", 8, 1, 8, 2, 1880.0))
sketch14.setExpression("Constraints[40]", "Params.sketch14_width")
sketch14.setExpression("Constraints[41]", "Params.sketch14_width2")
sketch14.setExpression("Constraints[42]", "Params.sketch14_width3")
sketch14.setExpression("Constraints[43]", "Params.sketch14_height")
sketch14.setExpression("Constraints[44]", "Params.sketch14_height2")
pad13 = doc.addObject("PartDesign::Pad", "Pad012")
body.addObject(pad13)
pad13.Profile = sketch14
pad13.setExpression("Length", "Params.pad13_length")
pad13.Reversed = True

sketch15 = doc.addObject("Sketcher::SketchObject", "Sketch014")
body.addObject(sketch15)
sketch15.AttachmentSupport = (doc.YZ_Plane, [""])
sketch15.MapMode = "FlatFace"
sketch15.AttachmentOffset = App.Placement(Vector(0, 0, 451.5), App.Rotation())
add_polygon(sketch15, [(0, -2120), (0, -60), (-65, -60), (-65, 0), (-240, 0), (-240, -40), (-225, -40), (-225, -110), (-65, -150), (-65, -2030), (-225, -2070), (-225, -2140), (-240, -2140), (-240, -2180), (-65, -2180), (-65, -2120)])
sketch15.addConstraint(Sketcher.Constraint("Vertical", 0))
sketch15.addConstraint(Sketcher.Constraint("Horizontal", 1))
sketch15.addConstraint(Sketcher.Constraint("Vertical", 2))
sketch15.addConstraint(Sketcher.Constraint("Horizontal", 3))
sketch15.addConstraint(Sketcher.Constraint("Vertical", 4))
sketch15.addConstraint(Sketcher.Constraint("Horizontal", 5))
sketch15.addConstraint(Sketcher.Constraint("Vertical", 6))
sketch15.addConstraint(Sketcher.Constraint("Vertical", 8))
sketch15.addConstraint(Sketcher.Constraint("Vertical", 10))
sketch15.addConstraint(Sketcher.Constraint("Horizontal", 11))
sketch15.addConstraint(Sketcher.Constraint("Vertical", 12))
sketch15.addConstraint(Sketcher.Constraint("Horizontal", 13))
sketch15.addConstraint(Sketcher.Constraint("Vertical", 14))
sketch15.addConstraint(Sketcher.Constraint("Horizontal", 15))
sketch15.addConstraint(Sketcher.Constraint("PointOnObject", 0, 2, -2))
sketch15.addConstraint(Sketcher.Constraint("PointOnObject", 2, 2, -1))
sketch15.addConstraint(Sketcher.Constraint("Vertical", 2, 2, 7, 2))
sketch15.addConstraint(Sketcher.Constraint("Vertical", 6, 2, 9, 2))
sketch15.addConstraint(Sketcher.Constraint("Vertical", 4, 2, 11, 2))
sketch15.addConstraint(Sketcher.Constraint("Vertical", 8, 2, 13, 2))
sketch15.addConstraint(Sketcher.Constraint("Equal", 6, 10))
sketch15.addConstraint(Sketcher.Constraint("Equal", 4, 12))
sketch15.addConstraint(Sketcher.Constraint("Equal", 2, 14))
sketch15.addConstraint(Sketcher.Constraint("Equal", 7, 9))
sketch15.addConstraint(Sketcher.Constraint("DistanceX", 1, 2, 1, 1, 65.0))
sketch15.addConstraint(Sketcher.Constraint("DistanceX", 3, 2, 3, 1, 175.0))
sketch15.addConstraint(Sketcher.Constraint("DistanceX", 5, 1, 5, 2, 15.0))
sketch15.addConstraint(Sketcher.Constraint("DistanceY", 0, 1, 0, 2, 2060.0))
sketch15.addConstraint(Sketcher.Constraint("DistanceY", 2, 1, 2, 2, 60.0))
sketch15.addConstraint(Sketcher.Constraint("DistanceY", 4, 2, 4, 1, 40.0))
sketch15.addConstraint(Sketcher.Constraint("DistanceY", 6, 2, 6, 1, 70.0))
sketch15.addConstraint(Sketcher.Constraint("DistanceY", 8, 2, 8, 1, 1880.0))
sketch15.setExpression("Constraints[40]", "Params.sketch15_width")
sketch15.setExpression("Constraints[41]", "Params.sketch15_width2")
sketch15.setExpression("Constraints[42]", "Params.sketch15_width3")
sketch15.setExpression("Constraints[43]", "Params.sketch15_height")
sketch15.setExpression("Constraints[44]", "Params.sketch15_height2")
pad14 = doc.addObject("PartDesign::Pad", "Pad013")
body.addObject(pad14)
pad14.Profile = sketch15
pad14.setExpression("Length", "Params.pad14_length")

sketch16 = doc.addObject("Sketcher::SketchObject", "Sketch015")
body.addObject(sketch16)
sketch16.AttachmentSupport = (doc.XZ_Plane, [""])
sketch16.MapMode = "FlatFace"
sketch16.AttachmentOffset = App.Placement(Vector(0, 0, 65), App.Rotation())
add_polygon(sketch16, [(-472, -380), (-472, -410), (472, -410), (472, -380)])
sketch16.addConstraint(Sketcher.Constraint("Vertical", 0))
sketch16.addConstraint(Sketcher.Constraint("Horizontal", 1))
sketch16.addConstraint(Sketcher.Constraint("Vertical", 2))
sketch16.addConstraint(Sketcher.Constraint("Horizontal", 3))
sketch16.addConstraint(Sketcher.Constraint("DistanceX", 1, 1, 1, 2, 943.0))
sketch16.addConstraint(Sketcher.Constraint("DistanceY", 0, 2, 0, 1, 30.0))
sketch16.addConstraint(Sketcher.Constraint("DistanceY", 0, 2, -1, 1, 410.0))
sketch16.addConstraint(Sketcher.Constraint("DistanceX", 0, 2, -1, 1, 471.5))
sketch16.setExpression("Constraints[8]", "Params.sketch16_width")
sketch16.setExpression("Constraints[9]", "Params.sketch16_height")
pad15 = doc.addObject("PartDesign::Pad", "Pad014")
body.addObject(pad15)
pad15.Profile = sketch16
pad15.setExpression("Length", "Params.pad15_length")

doc.recompute()
